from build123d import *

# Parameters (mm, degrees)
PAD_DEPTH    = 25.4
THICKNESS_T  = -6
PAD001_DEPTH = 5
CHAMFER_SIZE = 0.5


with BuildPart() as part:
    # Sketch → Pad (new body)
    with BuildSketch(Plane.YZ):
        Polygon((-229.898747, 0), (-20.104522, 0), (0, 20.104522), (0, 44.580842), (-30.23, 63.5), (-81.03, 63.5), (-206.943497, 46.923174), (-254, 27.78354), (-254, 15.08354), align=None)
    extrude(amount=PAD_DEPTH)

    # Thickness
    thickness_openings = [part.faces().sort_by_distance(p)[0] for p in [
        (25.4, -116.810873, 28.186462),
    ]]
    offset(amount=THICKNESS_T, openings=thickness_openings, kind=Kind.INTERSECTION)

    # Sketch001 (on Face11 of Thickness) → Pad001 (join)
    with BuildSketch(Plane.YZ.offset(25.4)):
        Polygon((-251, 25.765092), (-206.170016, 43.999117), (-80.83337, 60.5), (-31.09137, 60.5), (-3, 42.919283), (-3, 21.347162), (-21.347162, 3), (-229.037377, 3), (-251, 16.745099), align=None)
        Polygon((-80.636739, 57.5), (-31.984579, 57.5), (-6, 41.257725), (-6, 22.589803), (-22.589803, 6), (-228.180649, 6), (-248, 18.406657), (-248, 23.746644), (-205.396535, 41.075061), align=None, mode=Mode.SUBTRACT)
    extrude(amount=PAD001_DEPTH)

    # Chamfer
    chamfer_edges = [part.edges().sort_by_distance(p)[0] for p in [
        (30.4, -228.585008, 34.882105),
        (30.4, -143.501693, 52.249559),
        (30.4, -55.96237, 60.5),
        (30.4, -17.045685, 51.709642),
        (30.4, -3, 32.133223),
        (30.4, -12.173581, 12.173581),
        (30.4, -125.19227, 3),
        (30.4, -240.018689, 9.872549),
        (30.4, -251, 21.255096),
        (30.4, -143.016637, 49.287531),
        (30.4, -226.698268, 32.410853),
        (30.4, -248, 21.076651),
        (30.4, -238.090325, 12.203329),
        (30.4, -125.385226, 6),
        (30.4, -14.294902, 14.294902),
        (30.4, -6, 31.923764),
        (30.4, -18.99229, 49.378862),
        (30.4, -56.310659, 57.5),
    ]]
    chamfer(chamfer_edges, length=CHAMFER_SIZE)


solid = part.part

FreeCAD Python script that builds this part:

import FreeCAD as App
import Part
import Sketcher
from FreeCAD import Vector
Q = App.Units.Quantity


def edges_at(feature, points):
    """Names of the edges that pass closest to the given points."""
    edges = feature.Shape.Edges
    near = lambda p: min(range(len(edges)), key=lambda i: edges[i].distToShape(Part.Vertex(*p))[0])
    return sorted({f"Edge{near(p) + 1}" for p in points})


def faces_at(feature, points):
    """Names of the faces that lie closest to the given points."""
    faces = feature.Shape.Faces
    near = lambda p: min(range(len(faces)), key=lambda i: faces[i].distToShape(Part.Vertex(*p))[0])
    return sorted({f"Face{near(p) + 1}" for p in points})

doc = App.newDocument("Part")
body = doc.addObject("PartDesign::Body", "Body")

sketch1 = doc.addObject("Sketcher::SketchObject", "Sketch")
body.addObject(sketch1)
sketch1.AttachmentSupport = (doc.YZ_Plane, [""])
sketch1.MapMode = "FlatFace"
sketch1.addGeometry([
    Part.LineSegment(Vector(-230, 0, 0), Vector(-20, 0, 0)),
    Part.LineSegment(Vector(-20, 0, 0), Vector(0, 20, 0)),
    Part.LineSegment(Vector(0, 20, 0), Vector(0, 45, 0)),
    Part.LineSegment(Vector(0, 45, 0), Vector(-30, 64, 0)),
    Part.LineSegment(Vector(-30, 64, 0), Vector(-81, 64, 0)),
    Part.LineSegment(Vector(-81, 64, 0), Vector(-207, 47, 0)),
    Part.LineSegment(Vector(-207, 47, 0), Vector(-254, 28, 0)),
    Part.LineSegment(Vector(-254, 28, 0), Vector(-254, 15, 0)),
    Part.LineSegment(Vector(-254, 15, 0), Vector(-230, 0, 0)),
], False)
sketch1.addConstraint([
    Sketcher.Constraint("Coincident", 0, 2, 1, 1),
    Sketcher.Constraint("Coincident", 1, 2, 2, 1),
    Sketcher.Constraint("Coincident", 2, 2, 3, 1),
    Sketcher.Constraint("Coincident", 3, 2, 4, 1),
    Sketcher.Constraint("Coincident", 4, 2, 5, 1),
    Sketcher.Constraint("Coincident", 5, 2, 6, 1),
    Sketcher.Constraint("Coincident", 6, 2, 7, 1),
    Sketcher.Constraint("Coincident", 7, 2, 8, 1),
    Sketcher.Constraint("Coincident", 8, 2, 0, 1),
    Sketcher.Constraint("Horizontal", 0),
    Sketcher.Constraint("Vertical", 2),
    Sketcher.Constraint("Horizontal", 4),
    Sketcher.Constraint("Vertical", 7),
    Sketcher.Constraint("PointOnObject", 0, 2, -1),
    Sketcher.Constraint("PointOnObject", 1, 2, -2),
    Sketcher.Constraint("Parallel", 3, 8),
    Sketcher.Constraint("Equal", 1, 8),
    Sketcher.Constraint("DistanceX", 4, 2, 4, 1, Q("2 in")),
    Sketcher.Constraint("Distance", 5, Q("5 in")),
    Sketcher.Constraint("Distance", 6, Q("2 in")),
    Sketcher.Constraint("DistanceY", 7, 2, 7, 1, Q("0.5 in")),
    Sketcher.Constraint("DistanceX", 6, 2, -1, 1, Q("10 in")),
    Sketcher.Constraint("Angle", 1, Q("45 deg")),
    Sketcher.Constraint("DistanceY", -1, 1, 3, 2, Q("2.5 in")),
    Sketcher.Constraint("Angle", 5, Q("-172.5 deg")),
    Sketcher.Constraint("Angle", 3, Q("147.96 deg")),
    Sketcher.Constraint("DistanceY", 2, 1, 2, 2, Q("24.47632 mm")),
])
pad1 = doc.addObject("PartDesign::Pad", "Pad")
body.addObject(pad1)
pad1.Profile = sketch1
pad1.Length = Q("1 in")
doc.recompute()

thickness = doc.addObject("PartDesign::Thickness", "Thickness")
body.addObject(thickness)
thickness.Base = (pad1, faces_at(pad1, [(25.4, -127, 31.75)]))
thickness.Value = 6
thickness.Reversed = True
thickness.Join = "Intersection"

sketch2 = doc.addObject("Sketcher::SketchObject", "Sketch001")
body.addObject(sketch2)
sketch2.AttachmentSupport = (doc.YZ_Plane, [""])
sketch2.MapMode = "FlatFace"
sketch2.AttachmentOffset = App.Placement(Vector(0, 0, 1 * 25.4), App.Rotation())
sketch2.addGeometry([
    Part.LineSegment(Vector(-206, 44, 0), Vector(-251, 26, 0)),
    Part.LineSegment(Vector(-251, 26, 0), Vector(-251, 17, 0)),
    Part.LineSegment(Vector(-251, 17, 0), Vector(-229, 3, 0)),
    Part.LineSegment(Vector(-229, 3, 0), Vector(-21, 3, 0)),
    Part.LineSegment(Vector(-21, 3, 0), Vector(-3, 21, 0)),
    Part.LineSegment(Vector(-3, 21, 0), Vector(-3, 43, 0)),
    Part.LineSegment(Vector(-3, 43, 0), Vector(-31, 60, 0)),
    Part.LineSegment(Vector(-31, 60, 0), Vector(-81, 60, 0)),
    Part.LineSegment(Vector(-81, 60, 0), Vector(-206, 44, 0)),
    Part.LineSegment(Vector(-81, 58, 0), Vector(-32, 58, 0)),
    Part.LineSegment(Vector(-32, 58, 0), Vector(-6, 41, 0)),
    Part.LineSegment(Vector(-6, 41, 0), Vector(-6, 23, 0)),
    Part.LineSegment(Vector(-6, 23, 0), Vector(-23, 6, 0)),
    Part.LineSegment(Vector(-23, 6, 0), Vector(-228, 6, 0)),
    Part.LineSegment(Vector(-228, 6, 0), Vector(-248, 18, 0)),
    Part.LineSegment(Vector(-248, 18, 0), Vector(-248, 24, 0)),
    Part.LineSegment(Vector(-248, 24, 0), Vector(-205, 41, 0)),
    Part.LineSegment(Vector(-205, 41, 0), Vector(-81, 58, 0)),
], False)
sketch2.addConstraint([
    Sketcher.Constraint("Coincident", 0, 2, 1, 1),
    Sketcher.Constraint("Coincident", 1, 2, 2, 1),
    Sketcher.Constraint("Coincident", 2, 2, 3, 1),
    Sketcher.Constraint("Coincident", 3, 2, 4, 1),
    Sketcher.Constraint("Coincident", 4, 2, 5, 1),
    Sketcher.Constraint("Coincident", 5, 2, 6, 1),
    Sketcher.Constraint("Coincident", 6, 2, 7, 1),
    Sketcher.Constraint("Coincident", 7, 2, 8, 1),
    Sketcher.Constraint("Coincident", 8, 2, 0, 1),
    Sketcher.Constraint("Coincident", 9, 2, 10, 1),
    Sketcher.Constraint("Coincident", 10, 2, 11, 1),
    Sketcher.Constraint("Coincident", 11, 2, 12, 1),
    Sketcher.Constraint("Coincident", 12, 2, 13, 1),
    Sketcher.Constraint("Coincident", 13, 2, 14, 1),
    Sketcher.Constraint("Coincident", 14, 2, 15, 1),
    Sketcher.Constraint("Coincident", 15, 2, 16, 1),
    Sketcher.Constraint("Coincident", 16, 2, 17, 1),
    Sketcher.Constraint("Coincident", 17, 2, 9, 1),
    Sketcher.Constraint("Vertical", 1),
    Sketcher.Constraint("Horizontal", 3),
    Sketcher.Constraint("Vertical", 5),
    Sketcher.Constraint("Horizontal", 7),
    Sketcher.Constraint("Horizontal", 9),
    Sketcher.Constraint("Vertical", 11),
    Sketcher.Constraint("Horizontal", 13),
    Sketcher.Constraint("Vertical", 15),
    Sketcher.Constraint("Parallel", 2, 6),
    Sketcher.Constraint("Parallel", 4, 12),
    Sketcher.Constraint("Parallel", 0, 16),
    Sketcher.Constraint("Parallel", 8, 17),
    Sketcher.Constraint("Angle", 4, Q("45 deg")),
    Sketcher.Constraint("Angle", 8, Q("-172.5 deg")),
    Sketcher.Constraint("Angle", 2, Q("-32.04 deg")),
    Sketcher.Constraint("DistanceX", 7, 2, 7, 1, Q("49.742 mm")),
    Sketcher.Constraint("Distance", 6, Q("33.139202 mm")),
    Sketcher.Constraint("DistanceX", 9, 1, 9, 2, Q("48.65216 mm")),
    Sketcher.Constraint("DistanceY", 5, 1, 5, 2, Q("21.572121 mm")),
    Sketcher.Constraint("DistanceX", 0, 2, -1, 1, Q("251 mm")),
    Sketcher.Constraint("DistanceY", -1, 1, 1, 2, Q("16.745099 mm")),
    Sketcher.Constraint("DistanceY", -1, 1, 2, 2, Q("3 mm")),
    Sketcher.Constraint("DistanceX", 4, 2, -1, 1, Q("3 mm")),
    Sketcher.Constraint("DistanceY", -1, 1, 6, 2, Q("60.5 mm")),
    Sketcher.Constraint("DistanceY", -1, 1, 9, 2, Q("57.5 mm")),
    Sketcher.Constraint("DistanceX", 10, 2, -1, 1, Q("6 mm")),
    Sketcher.Constraint("DistanceY", -1, 1, 12, 2, Q("6 mm")),
    Sketcher.Constraint("DistanceX", 14, 2, -1, 1, Q("248 mm")),
    Sketcher.Constraint("Distance", 8, Q("126.418171 mm")),
    Sketcher.Constraint("Distance", 16, Q("45.992709 mm")),
    Sketcher.Constraint("DistanceX", 13, 2, 13, 1, Q("205.590846 mm")),
    Sketcher.Constraint("DistanceY", 1, 2, 1, 1, Q("9.019993 mm")),
    Sketcher.Constraint("DistanceY", 11, 2, 11, 1, Q("18.667922 mm")),
    Sketcher.Constraint("DistanceY", 15, 1, 15, 2, Q("5.339987 mm")),
    Sketcher.Constraint("DistanceX", 9, 2, -1, 1, Q("31.984579 mm")),
    Sketcher.Constraint("DistanceX", 13, 2, -1, 1, Q("228.180649 mm")),
])
pad2 = doc.addObject("PartDesign::Pad", "Pad001")
body.addObject(pad2)
pad2.Profile = sketch2
pad2.Length = 5
doc.recompute()

chamfer = doc.addObject("PartDesign::Chamfer", "Chamfer")
body.addObject(chamfer)
chamfer.Base = (pad2, edges_at(pad2, [
    (30.4, -228.585, 34.882),
    (30.4, -143.502, 52.25),
    (30.4, -55.962, 60.5),
    (30.4, -17.046, 51.71),
    (30.4, -3, 32.133),
    (30.4, -12.174, 12.174),
    (30.4, -125.192, 3),
    (30.4, -240.019, 9.873),
    (30.4, -251, 21.255),
    (30.4, -143.017, 49.288),
    (30.4, -226.698, 32.411),
    (30.4, -248, 21.077),
    (30.4, -238.09, 12.203),
    (30.4, -125.385, 6),
    (30.4, -14.295, 14.295),
    (30.4, -6, 31.924),
    (30.4, -18.992, 49.379),
    (30.4, -56.311, 57.5),
]))
chamfer.Size = 0.5

doc.recompute()
